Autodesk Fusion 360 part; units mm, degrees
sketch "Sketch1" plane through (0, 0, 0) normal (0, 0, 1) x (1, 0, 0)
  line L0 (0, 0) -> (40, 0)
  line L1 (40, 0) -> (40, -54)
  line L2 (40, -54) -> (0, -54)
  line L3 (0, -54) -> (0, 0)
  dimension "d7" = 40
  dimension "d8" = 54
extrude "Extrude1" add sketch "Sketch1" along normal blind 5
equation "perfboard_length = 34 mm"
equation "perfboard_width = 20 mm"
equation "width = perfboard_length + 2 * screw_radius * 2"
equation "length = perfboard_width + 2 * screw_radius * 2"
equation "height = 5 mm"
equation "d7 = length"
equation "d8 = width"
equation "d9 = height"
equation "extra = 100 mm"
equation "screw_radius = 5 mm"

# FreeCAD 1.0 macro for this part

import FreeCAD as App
import Part
import Sketcher

V = App.Vector

doc = App.newDocument("Part")
body = doc.addObject("PartDesign::Body", "Body")

sketch1 = body.newObject("Sketcher::SketchObject", "Sketch")
sketch1.AttachmentSupport = (doc.getObject("XY_Plane"), [""])
sketch1.MapMode = "FlatFace"
sketch1.addGeometry([
    Part.LineSegment(V(40, 0, 0), V(0, 0, 0)),
    Part.LineSegment(V(0, 0, 0), V(0, -54, 0)),
    Part.LineSegment(V(0, -54, 0), V(40, -54, 0)),
    Part.LineSegment(V(40, -54, 0), V(40, 0, 0)),
], False)
sketch1.addConstraint([
    Sketcher.Constraint("Coincident", 0, 2, 1, 1),
    Sketcher.Constraint("Coincident", 1, 2, 2, 1),
    Sketcher.Constraint("Coincident", 2, 2, 3, 1),
    Sketcher.Constraint("Coincident", 3, 2, 0, 1),
    Sketcher.Constraint("Horizontal", 0),
    Sketcher.Constraint("Vertical", 1),
    Sketcher.Constraint("Horizontal", 2),
    Sketcher.Constraint("Vertical", 3),
    Sketcher.Constraint("Coincident", 0, 2, -1, 1),
    Sketcher.Constraint("DistanceX", 0, 2, 0, 1, 40.0),
    Sketcher.Constraint("DistanceY", 1, 2, 1, 1, 54.0),
])
pad1 = body.newObject("PartDesign::Pad", "Pad")
pad1.Profile = sketch1
pad1.Length = 5

doc.recompute()
